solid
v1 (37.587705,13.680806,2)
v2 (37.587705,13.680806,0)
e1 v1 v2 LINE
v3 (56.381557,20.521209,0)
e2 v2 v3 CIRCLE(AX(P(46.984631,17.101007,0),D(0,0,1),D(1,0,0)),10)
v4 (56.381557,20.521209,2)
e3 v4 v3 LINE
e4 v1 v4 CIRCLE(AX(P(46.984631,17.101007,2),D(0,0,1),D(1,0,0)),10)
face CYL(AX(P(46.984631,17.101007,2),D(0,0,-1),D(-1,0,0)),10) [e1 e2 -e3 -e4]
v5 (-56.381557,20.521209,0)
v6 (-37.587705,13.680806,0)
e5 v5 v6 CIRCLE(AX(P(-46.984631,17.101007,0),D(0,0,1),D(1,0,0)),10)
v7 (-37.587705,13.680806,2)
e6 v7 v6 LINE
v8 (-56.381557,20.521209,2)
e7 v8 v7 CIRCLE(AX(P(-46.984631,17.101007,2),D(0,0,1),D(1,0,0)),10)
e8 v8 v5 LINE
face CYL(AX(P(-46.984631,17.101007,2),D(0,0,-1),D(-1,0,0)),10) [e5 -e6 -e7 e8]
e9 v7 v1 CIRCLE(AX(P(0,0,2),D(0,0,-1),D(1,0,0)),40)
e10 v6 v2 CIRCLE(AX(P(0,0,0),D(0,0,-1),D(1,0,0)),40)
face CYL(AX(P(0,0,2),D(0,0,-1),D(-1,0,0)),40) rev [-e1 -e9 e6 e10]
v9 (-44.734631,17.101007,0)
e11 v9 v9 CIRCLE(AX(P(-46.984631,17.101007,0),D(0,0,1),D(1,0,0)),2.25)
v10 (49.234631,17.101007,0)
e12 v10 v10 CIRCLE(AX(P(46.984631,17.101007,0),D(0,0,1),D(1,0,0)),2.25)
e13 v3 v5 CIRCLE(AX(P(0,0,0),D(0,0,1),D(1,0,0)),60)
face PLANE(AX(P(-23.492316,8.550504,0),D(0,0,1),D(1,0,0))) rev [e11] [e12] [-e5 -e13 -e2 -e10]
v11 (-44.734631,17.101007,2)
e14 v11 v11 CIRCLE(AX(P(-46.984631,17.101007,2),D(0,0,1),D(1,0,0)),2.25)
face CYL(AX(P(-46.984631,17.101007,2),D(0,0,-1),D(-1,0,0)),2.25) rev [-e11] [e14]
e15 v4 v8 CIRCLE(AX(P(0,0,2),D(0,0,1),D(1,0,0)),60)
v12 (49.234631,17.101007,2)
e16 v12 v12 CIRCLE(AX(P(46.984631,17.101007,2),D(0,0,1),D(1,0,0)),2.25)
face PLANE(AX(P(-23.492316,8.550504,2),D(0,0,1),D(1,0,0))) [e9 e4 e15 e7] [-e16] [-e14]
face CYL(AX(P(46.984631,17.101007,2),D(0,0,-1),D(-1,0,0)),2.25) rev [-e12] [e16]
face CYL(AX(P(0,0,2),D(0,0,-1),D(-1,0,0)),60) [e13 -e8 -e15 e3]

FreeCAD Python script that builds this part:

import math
import FreeCAD as App
import Part
import Sketcher

V = App.Vector

doc = App.newDocument("Part")
body = doc.addObject("PartDesign::Body", "Body")

# Sketch on XY plane
sketch1 = body.newObject("Sketcher::SketchObject", "Sketch")
sketch1.AttachmentSupport = (doc.getObject("XY_Plane"), [""])
sketch1.MapMode = "FlatFace"
sketch1.addGeometry(Part.ArcOfCircle(Part.Circle(V(47, 17.1, 0), V(0, 0, 1), 10), math.radians(-160), math.radians(20)), False)
sketch1.addGeometry(Part.ArcOfCircle(Part.Circle(V(0, 0, 0), V(0, 0, 1), 60), math.radians(20), math.radians(160)), False)
sketch1.addGeometry(Part.ArcOfCircle(Part.Circle(V(-47, 17.1, 0), V(0, 0, 1), 10), math.radians(160), math.radians(340)), False)
sketch1.addGeometry(Part.ArcOfCircle(Part.Circle(V(0, 0, 0), V(0, 0, 1), 40), math.radians(20), math.radians(160)), False)
sketch1.addGeometry(Part.Circle(V(-47, 17.1, 0), V(0, 0, 1), 2.2), False)
sketch1.addGeometry(Part.Circle(V(47, 17.1, 0), V(0, 0, 1), 2.2), False)
sketch1.addConstraint(Sketcher.Constraint("Tangent", 0, 2, 1, 1))
sketch1.addConstraint(Sketcher.Constraint("Tangent", 1, 2, 2, 1))
sketch1.addConstraint(Sketcher.Constraint("Tangent", 2, 2, 3, 2))
sketch1.addConstraint(Sketcher.Constraint("Tangent", 3, 1, 0, 1))
sketch1.addConstraint(Sketcher.Constraint("Coincident", 1, 3, -1, 1))
sketch1.addConstraint(Sketcher.Constraint("Coincident", 3, 3, -1, 1))
sketch1.addConstraint(Sketcher.Constraint("Coincident", 4, 3, 2, 3))
sketch1.addConstraint(Sketcher.Constraint("Coincident", 5, 3, 0, 3))
sketch1.addConstraint(Sketcher.Constraint("Equal", 4, 5))
sketch1.addConstraint(Sketcher.Constraint("Horizontal", 0, 3, 2, 3))
sketch1.addConstraint(Sketcher.Constraint("Radius", 0, 10.0))
sketch1.addConstraint(Sketcher.Constraint("Radius", 1, 60.0))
sketch1.addConstraint(Sketcher.Constraint("Diameter", 4, 4.5))
sketch1.addConstraint(Sketcher.Constraint("DistanceY", 0, 3, 0, 2, 3.420201))
pad1 = body.newObject("PartDesign::Pad", "Pad")
pad1.Profile = sketch1
pad1.Length = 2

doc.recompute()
